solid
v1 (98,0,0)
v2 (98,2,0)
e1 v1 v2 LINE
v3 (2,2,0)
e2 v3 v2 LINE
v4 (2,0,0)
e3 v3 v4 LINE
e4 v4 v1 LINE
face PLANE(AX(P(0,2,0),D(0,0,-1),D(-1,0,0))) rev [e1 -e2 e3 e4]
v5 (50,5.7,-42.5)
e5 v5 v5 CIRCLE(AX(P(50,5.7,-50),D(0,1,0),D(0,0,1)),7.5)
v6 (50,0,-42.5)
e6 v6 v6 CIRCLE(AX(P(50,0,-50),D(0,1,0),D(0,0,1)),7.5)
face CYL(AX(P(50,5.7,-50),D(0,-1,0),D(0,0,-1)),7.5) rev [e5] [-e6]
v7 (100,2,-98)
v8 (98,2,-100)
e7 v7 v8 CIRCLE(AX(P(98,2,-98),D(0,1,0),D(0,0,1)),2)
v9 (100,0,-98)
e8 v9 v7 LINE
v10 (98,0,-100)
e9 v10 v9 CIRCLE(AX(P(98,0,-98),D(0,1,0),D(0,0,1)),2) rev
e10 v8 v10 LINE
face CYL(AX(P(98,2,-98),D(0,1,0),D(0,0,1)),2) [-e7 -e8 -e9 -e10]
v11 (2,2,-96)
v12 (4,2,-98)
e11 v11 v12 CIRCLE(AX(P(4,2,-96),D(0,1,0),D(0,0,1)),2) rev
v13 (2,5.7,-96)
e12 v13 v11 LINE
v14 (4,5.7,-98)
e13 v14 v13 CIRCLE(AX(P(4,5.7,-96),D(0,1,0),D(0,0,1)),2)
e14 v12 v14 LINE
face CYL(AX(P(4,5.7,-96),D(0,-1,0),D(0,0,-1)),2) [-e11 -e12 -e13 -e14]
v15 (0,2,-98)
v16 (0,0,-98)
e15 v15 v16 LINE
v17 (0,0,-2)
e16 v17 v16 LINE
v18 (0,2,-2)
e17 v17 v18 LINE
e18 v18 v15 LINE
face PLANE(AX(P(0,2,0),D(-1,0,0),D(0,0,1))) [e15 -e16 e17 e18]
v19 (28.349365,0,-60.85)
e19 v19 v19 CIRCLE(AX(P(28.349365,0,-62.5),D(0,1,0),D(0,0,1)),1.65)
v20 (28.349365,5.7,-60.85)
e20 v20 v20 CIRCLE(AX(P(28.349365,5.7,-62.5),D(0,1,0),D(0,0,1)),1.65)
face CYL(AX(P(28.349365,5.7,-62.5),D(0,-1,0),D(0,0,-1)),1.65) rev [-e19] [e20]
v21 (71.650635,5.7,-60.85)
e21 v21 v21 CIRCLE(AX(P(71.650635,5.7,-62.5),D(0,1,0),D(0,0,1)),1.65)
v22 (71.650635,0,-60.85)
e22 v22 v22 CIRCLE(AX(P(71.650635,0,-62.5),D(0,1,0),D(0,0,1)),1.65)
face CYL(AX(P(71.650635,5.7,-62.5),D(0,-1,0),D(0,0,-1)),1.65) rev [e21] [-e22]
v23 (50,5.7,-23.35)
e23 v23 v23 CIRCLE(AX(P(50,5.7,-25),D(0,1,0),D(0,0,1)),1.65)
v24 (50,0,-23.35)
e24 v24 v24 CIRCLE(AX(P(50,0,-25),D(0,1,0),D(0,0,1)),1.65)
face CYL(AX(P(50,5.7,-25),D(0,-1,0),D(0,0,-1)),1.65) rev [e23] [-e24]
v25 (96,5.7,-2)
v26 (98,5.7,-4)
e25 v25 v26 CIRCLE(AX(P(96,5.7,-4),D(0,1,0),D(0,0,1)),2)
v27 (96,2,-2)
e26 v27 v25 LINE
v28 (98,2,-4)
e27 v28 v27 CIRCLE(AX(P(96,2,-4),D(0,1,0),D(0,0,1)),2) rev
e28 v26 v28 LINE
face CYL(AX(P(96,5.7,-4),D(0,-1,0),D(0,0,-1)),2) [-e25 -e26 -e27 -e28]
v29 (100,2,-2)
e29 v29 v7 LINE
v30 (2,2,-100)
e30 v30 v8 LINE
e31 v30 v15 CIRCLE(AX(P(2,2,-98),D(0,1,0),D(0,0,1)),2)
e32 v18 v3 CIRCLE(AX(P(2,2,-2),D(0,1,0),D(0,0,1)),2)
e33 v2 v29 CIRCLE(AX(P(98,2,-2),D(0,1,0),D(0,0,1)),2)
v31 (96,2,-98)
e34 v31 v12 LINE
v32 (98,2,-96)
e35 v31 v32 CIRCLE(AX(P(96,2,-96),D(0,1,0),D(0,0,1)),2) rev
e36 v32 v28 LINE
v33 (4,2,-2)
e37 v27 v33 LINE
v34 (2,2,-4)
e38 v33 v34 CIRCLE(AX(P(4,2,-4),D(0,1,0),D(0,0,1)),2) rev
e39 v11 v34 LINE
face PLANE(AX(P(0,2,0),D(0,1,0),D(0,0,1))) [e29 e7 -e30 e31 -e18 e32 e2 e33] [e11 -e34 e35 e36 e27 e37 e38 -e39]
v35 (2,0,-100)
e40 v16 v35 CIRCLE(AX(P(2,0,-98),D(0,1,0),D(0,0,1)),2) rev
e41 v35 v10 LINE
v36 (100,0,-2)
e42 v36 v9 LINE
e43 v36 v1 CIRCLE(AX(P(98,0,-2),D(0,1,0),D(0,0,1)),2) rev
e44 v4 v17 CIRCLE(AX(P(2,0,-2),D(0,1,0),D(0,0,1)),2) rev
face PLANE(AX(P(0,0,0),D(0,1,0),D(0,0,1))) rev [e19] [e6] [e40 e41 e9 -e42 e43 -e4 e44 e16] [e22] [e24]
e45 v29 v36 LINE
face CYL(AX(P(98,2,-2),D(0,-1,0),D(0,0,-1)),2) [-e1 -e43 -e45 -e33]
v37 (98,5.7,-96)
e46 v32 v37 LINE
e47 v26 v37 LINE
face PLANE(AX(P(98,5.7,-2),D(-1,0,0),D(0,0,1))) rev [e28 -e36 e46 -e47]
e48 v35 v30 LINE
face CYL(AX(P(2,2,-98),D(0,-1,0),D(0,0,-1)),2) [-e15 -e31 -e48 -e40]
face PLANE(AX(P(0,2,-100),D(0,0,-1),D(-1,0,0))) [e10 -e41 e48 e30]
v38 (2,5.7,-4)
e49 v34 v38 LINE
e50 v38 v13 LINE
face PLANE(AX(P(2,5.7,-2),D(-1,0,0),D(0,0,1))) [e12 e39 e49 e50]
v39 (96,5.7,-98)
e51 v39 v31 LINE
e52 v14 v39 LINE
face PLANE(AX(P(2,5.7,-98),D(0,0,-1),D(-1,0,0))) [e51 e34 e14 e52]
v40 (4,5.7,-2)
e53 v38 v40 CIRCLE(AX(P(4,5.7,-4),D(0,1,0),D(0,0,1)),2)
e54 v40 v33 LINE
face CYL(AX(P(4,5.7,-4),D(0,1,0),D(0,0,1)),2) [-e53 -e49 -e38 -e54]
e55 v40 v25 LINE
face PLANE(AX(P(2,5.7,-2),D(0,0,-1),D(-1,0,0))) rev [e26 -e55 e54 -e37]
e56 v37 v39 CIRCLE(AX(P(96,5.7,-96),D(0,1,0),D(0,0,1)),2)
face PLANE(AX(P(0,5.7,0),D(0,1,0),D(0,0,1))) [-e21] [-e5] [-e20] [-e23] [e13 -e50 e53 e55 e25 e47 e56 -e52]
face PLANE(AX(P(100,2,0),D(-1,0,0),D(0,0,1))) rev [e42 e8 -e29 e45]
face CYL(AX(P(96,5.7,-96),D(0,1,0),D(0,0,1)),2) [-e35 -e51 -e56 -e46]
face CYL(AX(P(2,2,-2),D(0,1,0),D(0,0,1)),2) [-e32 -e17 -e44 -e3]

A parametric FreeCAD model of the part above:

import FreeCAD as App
import Part
import Sketcher

V = App.Vector


def edges_at(feature, points):
    """Names of the edges that pass closest to the given points."""
    edges = feature.Shape.Edges
    near = lambda p: min(range(len(edges)), key=lambda i: edges[i].distToShape(Part.Vertex(*p))[0])
    return sorted({f"Edge{near(p) + 1}" for p in points})

doc = App.newDocument("Part")
body = doc.addObject("PartDesign::Body", "Body")

# Sketch on XZ plane
sketch1 = doc.addObject("Sketcher::SketchObject", "Sketch")
body.addObject(sketch1)
sketch1.AttachmentSupport = (doc.XZ_Plane, [""])
sketch1.MapMode = "FlatFace"
sketch1.addGeometry([
    Part.LineSegment(V(0, -100, 0), V(0, 0, 0)),
    Part.LineSegment(V(0, 0, 0), V(100, 0, 0)),
    Part.LineSegment(V(100, 0, 0), V(100, -100, 0)),
    Part.LineSegment(V(100, -100, 0), V(0, -100, 0)),
], False)
sketch1.addConstraint([
    Sketcher.Constraint("Coincident", 0, 2, 1, 1),
    Sketcher.Constraint("Coincident", 1, 2, 2, 1),
    Sketcher.Constraint("Coincident", 2, 2, 3, 1),
    Sketcher.Constraint("Coincident", 3, 2, 0, 1),
    Sketcher.Constraint("Vertical", 0),
    Sketcher.Constraint("Horizontal", 1),
    Sketcher.Constraint("Vertical", 2),
    Sketcher.Constraint("Horizontal", 3),
    Sketcher.Constraint("Coincident", 0, 2, -1, 1),
    Sketcher.Constraint("Equal", 3, 0),
    Sketcher.Constraint("DistanceX", 1, 1, 1, 2, 100.0),
])
pad1 = doc.addObject("PartDesign::Pad", "Pad")
body.addObject(pad1)
pad1.Profile = sketch1
pad1.Length = 2
pad1.Reversed = True

# Sketch on XZ plane
sketch2 = doc.addObject("Sketcher::SketchObject", "Sketch001")
body.addObject(sketch2)
sketch2.AttachmentSupport = (doc.XZ_Plane, [""])
sketch2.MapMode = "FlatFace"
sketch2.addGeometry([
    Part.LineSegment(V(2, -98, 0), V(2, -2, 0)),
    Part.LineSegment(V(2, -2, 0), V(98, -2, 0)),
    Part.LineSegment(V(98, -2, 0), V(98, -98, 0)),
    Part.LineSegment(V(98, -98, 0), V(2, -98, 0)),
], False)
sketch2.addConstraint([
    Sketcher.Constraint("Coincident", 0, 2, 1, 1),
    Sketcher.Constraint("Coincident", 1, 2, 2, 1),
    Sketcher.Constraint("Coincident", 2, 2, 3, 1),
    Sketcher.Constraint("Coincident", 3, 2, 0, 1),
    Sketcher.Constraint("Vertical", 0),
    Sketcher.Constraint("Horizontal", 1),
    Sketcher.Constraint("Vertical", 2),
    Sketcher.Constraint("Horizontal", 3),
    Sketcher.Constraint("Equal", 3, 0),
    Sketcher.Constraint("DistanceX", 1, 1, 1, 2, 96.0),
    Sketcher.Constraint("DistanceX", -1, 1, 0, 2, 2.0),
    Sketcher.Constraint("DistanceY", 0, 2, -1, 1, 2.0),
])
pad2 = doc.addObject("PartDesign::Pad", "Pad001")
body.addObject(pad2)
pad2.Profile = sketch2
pad2.Length = 5.7
pad2.Reversed = True
doc.recompute()

fillet = doc.addObject("PartDesign::Fillet", "Fillet")
body.addObject(fillet)
fillet.Base = (pad2, edges_at(pad2, [
    (2, 3.85, -2),
    (98, 3.85, -2),
    (98, 3.85, -98),
    (2, 3.85, -98),
    (0, 1, 0),
    (0, 1, -100),
    (100, 1, -100),
    (100, 1, 0),
]))
fillet.Radius = 2

# Sketch on XZ plane
sketch3 = doc.addObject("Sketcher::SketchObject", "Sketch002")
body.addObject(sketch3)
sketch3.AttachmentSupport = (doc.XZ_Plane, [""])
sketch3.MapMode = "FlatFace"
sketch3.addGeometry([
    Part.Circle(V(50, -50, 0), V(0, 0, 1), 7.5),
    Part.Circle(V(50, -25, 0), V(0, 0, 1), 1.6),
    Part.Circle(V(28.3, -62.5, 0), V(0, 0, 1), 1.6),
    Part.Circle(V(71.7, -62.5, 0), V(0, 0, 1), 1.6),
], False)
sketch3.addConstraint([
    Sketcher.Constraint("Equal", 1, 2),
    Sketcher.Constraint("Equal", 2, 3),
    Sketcher.Constraint("Horizontal", 2, 3, 3, 3),
    Sketcher.Constraint("Vertical", 0, 3, 1, 3),
    Sketcher.Constraint("Diameter", 0, 15.0),
    Sketcher.Constraint("Diameter", 1, 3.3),
    Sketcher.Constraint("DistanceX", -1, 1, 0, 3, 50.0),
    Sketcher.Constraint("DistanceY", 0, 3, -1, 1, 50.0),
    Sketcher.Constraint("DistanceY", 1, 3, -1, 1, 25.0),
    Sketcher.Constraint("DistanceY", 2, 3, -1, 1, 62.5),
    Sketcher.Constraint("DistanceX", 2, 3, 3, 3, 43.30127),
    Sketcher.Constraint("DistanceX", -1, 1, 2, 3, 28.349365),
])
pocket1 = doc.addObject("PartDesign::Pocket", "Pocket")
body.addObject(pocket1)
pocket1.Profile = sketch3
pocket1.Type = "ThroughAll"

doc.recompute()
